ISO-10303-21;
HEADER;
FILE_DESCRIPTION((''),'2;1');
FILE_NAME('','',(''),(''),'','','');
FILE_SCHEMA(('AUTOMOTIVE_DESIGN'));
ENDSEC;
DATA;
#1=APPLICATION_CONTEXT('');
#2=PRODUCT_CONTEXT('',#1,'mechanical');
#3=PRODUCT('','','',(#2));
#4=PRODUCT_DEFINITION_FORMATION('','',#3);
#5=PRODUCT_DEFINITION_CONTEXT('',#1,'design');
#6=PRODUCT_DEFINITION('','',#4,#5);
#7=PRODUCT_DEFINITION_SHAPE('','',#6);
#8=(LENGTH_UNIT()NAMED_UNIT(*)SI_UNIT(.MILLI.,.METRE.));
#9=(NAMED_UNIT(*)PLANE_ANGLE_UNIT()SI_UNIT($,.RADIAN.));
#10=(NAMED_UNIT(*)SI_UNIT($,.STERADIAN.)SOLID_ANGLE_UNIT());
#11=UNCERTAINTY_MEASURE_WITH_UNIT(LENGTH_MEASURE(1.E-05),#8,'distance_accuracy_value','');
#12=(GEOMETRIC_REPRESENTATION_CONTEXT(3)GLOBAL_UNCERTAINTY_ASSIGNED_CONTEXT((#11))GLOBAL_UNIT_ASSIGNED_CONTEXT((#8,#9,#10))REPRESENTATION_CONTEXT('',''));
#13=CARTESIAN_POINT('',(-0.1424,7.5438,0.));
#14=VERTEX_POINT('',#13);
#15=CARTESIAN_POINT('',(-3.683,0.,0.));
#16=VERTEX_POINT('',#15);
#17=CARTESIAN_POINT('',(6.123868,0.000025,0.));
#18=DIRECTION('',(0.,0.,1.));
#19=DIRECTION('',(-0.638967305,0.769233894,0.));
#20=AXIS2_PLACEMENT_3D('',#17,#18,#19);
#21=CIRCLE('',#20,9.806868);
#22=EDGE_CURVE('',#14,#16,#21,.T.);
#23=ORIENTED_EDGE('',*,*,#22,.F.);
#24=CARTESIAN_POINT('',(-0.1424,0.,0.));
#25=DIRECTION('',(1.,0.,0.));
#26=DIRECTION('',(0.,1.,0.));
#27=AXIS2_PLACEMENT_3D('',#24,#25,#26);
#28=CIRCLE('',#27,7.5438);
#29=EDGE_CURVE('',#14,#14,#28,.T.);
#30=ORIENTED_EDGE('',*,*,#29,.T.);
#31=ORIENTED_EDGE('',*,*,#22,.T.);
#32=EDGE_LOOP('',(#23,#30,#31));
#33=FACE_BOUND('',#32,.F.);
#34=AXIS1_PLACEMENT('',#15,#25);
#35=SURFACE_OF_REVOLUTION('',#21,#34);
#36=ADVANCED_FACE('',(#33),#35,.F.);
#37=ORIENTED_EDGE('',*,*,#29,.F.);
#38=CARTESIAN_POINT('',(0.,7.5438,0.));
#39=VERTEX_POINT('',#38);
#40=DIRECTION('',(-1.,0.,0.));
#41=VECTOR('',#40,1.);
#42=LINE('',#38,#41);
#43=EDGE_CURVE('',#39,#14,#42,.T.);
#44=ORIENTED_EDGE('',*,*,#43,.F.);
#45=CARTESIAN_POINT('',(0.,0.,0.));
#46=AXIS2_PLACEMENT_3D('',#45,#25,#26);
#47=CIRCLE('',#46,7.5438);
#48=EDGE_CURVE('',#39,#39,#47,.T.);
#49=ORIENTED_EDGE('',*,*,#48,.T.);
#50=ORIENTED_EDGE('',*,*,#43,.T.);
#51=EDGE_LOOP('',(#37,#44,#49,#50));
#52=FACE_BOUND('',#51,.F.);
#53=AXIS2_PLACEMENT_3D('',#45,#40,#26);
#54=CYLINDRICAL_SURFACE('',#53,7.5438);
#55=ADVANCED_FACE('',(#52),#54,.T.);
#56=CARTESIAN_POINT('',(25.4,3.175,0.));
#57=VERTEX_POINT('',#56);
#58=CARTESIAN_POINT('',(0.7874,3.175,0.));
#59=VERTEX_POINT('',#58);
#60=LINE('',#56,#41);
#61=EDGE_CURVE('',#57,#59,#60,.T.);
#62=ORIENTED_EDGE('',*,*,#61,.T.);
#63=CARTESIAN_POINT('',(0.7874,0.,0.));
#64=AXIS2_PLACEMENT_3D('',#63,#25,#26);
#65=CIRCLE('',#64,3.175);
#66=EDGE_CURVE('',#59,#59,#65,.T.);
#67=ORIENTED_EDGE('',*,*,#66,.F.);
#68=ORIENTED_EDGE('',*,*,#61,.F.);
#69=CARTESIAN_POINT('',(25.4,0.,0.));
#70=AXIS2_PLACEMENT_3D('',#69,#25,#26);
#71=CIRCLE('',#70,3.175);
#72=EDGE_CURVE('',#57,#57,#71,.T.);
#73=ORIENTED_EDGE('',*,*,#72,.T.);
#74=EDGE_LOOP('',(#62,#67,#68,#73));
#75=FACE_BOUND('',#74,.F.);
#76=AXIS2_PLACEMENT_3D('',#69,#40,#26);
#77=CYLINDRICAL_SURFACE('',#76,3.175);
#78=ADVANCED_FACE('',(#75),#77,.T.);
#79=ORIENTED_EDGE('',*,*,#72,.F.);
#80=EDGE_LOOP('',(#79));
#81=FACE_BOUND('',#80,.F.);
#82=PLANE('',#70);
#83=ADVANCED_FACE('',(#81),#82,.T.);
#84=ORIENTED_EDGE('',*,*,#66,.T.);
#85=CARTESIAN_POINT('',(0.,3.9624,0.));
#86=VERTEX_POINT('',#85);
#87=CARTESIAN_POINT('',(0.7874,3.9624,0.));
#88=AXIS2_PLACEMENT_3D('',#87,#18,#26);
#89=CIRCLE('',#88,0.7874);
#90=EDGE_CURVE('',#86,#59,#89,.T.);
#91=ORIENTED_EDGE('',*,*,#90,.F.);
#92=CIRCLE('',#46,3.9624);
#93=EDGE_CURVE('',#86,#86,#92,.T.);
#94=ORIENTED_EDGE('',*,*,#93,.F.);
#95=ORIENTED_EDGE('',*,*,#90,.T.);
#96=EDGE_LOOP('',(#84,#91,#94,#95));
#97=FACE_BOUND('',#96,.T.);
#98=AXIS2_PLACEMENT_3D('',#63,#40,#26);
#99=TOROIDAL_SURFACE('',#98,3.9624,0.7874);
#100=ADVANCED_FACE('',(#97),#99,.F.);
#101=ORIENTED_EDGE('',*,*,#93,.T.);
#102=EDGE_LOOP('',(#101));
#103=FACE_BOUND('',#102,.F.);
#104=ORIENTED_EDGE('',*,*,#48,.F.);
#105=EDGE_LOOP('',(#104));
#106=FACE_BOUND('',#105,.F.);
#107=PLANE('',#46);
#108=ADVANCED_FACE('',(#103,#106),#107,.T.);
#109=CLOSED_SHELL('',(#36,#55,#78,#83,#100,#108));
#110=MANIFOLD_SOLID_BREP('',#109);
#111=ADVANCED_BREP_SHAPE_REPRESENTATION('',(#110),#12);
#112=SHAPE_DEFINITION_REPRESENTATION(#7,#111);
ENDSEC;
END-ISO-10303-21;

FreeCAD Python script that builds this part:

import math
import FreeCAD as App
import Part
import Sketcher
Q = App.Units.Quantity


def edges_at(feature, points):
    """Names of the edges that pass closest to the given points."""
    edges = feature.Shape.Edges
    near = lambda p: min(range(len(edges)), key=lambda i: edges[i].distToShape(Part.Vertex(*p))[0])
    return sorted({f"Edge{near(p) + 1}" for p in points})

doc = App.newDocument("Part")
body = doc.addObject("PartDesign::Body", "Body")

sketch1 = body.newObject("Sketcher::SketchObject", "Sketch")
sketch1.AttachmentSupport = (doc.getObject("XY_Plane"), [""])
sketch1.MapMode = "FlatFace"
sketch1.addGeometry([
    Part.ArcOfCircle(Part.Circle(App.Vector(6.12, 0, 0), App.Vector(0, 0, 1), 9.81), math.radians(130), math.radians(180)),
    Part.LineSegment(App.Vector(-3.68, 0, 0), App.Vector(25.4, 0, 0)),
    Part.LineSegment(App.Vector(25.4, 0, 0), App.Vector(25.4, 3.17, 0)),
    Part.LineSegment(App.Vector(25.4, 3.17, 0), App.Vector(0, 3.17, 0)),
    Part.LineSegment(App.Vector(0, 3.17, 0), App.Vector(0, 7.54, 0)),
    Part.LineSegment(App.Vector(0, 7.54, 0), App.Vector(-0.14, 7.54, 0)),
], False)
sketch1.addConstraint([
    Sketcher.Constraint("Coincident", 0, 2, 1, 1),
    Sketcher.Constraint("Coincident", 1, 2, 2, 1),
    Sketcher.Constraint("Coincident", 2, 2, 3, 1),
    Sketcher.Constraint("Coincident", 3, 2, 4, 1),
    Sketcher.Constraint("Coincident", 4, 2, 5, 1),
    Sketcher.Constraint("Coincident", 5, 2, 0, 1),
    Sketcher.Constraint("Horizontal", 1),
    Sketcher.Constraint("Vertical", 2),
    Sketcher.Constraint("Horizontal", 3),
    Sketcher.Constraint("Vertical", 4),
    Sketcher.Constraint("Horizontal", 5),
    Sketcher.Constraint("PointOnObject", 0, 3, -1),
    Sketcher.Constraint("PointOnObject", 0, 2, -1),
    Sketcher.Constraint("PointOnObject", 3, 2, -2),
    Sketcher.Constraint("DistanceX", 3, 2, 3, 1, Q("1 in")),
    Sketcher.Constraint("Radius", 0, Q("0.3861 in")),
    Sketcher.Constraint("DistanceX", 0, 2, -1, 1, Q("0.145 in")),
    Sketcher.Constraint("DistanceY", 2, 1, 2, 2, Q("0.125 in")),
    Sketcher.Constraint("DistanceY", 4, 1, 4, 2, Q("0.172 in")),
])
revolution = body.newObject("PartDesign::Revolution", "Revolution")
revolution.Profile = sketch1
revolution.ReferenceAxis = (sketch1, ["H_Axis"])
revolution.Angle = 360
doc.recompute()

fillet = body.newObject("PartDesign::Fillet", "Fillet")
fillet.Base = (revolution, edges_at(revolution, [(0, -3.175, 0)]))
fillet.Radius = Q("0.031 in")

doc.recompute()
